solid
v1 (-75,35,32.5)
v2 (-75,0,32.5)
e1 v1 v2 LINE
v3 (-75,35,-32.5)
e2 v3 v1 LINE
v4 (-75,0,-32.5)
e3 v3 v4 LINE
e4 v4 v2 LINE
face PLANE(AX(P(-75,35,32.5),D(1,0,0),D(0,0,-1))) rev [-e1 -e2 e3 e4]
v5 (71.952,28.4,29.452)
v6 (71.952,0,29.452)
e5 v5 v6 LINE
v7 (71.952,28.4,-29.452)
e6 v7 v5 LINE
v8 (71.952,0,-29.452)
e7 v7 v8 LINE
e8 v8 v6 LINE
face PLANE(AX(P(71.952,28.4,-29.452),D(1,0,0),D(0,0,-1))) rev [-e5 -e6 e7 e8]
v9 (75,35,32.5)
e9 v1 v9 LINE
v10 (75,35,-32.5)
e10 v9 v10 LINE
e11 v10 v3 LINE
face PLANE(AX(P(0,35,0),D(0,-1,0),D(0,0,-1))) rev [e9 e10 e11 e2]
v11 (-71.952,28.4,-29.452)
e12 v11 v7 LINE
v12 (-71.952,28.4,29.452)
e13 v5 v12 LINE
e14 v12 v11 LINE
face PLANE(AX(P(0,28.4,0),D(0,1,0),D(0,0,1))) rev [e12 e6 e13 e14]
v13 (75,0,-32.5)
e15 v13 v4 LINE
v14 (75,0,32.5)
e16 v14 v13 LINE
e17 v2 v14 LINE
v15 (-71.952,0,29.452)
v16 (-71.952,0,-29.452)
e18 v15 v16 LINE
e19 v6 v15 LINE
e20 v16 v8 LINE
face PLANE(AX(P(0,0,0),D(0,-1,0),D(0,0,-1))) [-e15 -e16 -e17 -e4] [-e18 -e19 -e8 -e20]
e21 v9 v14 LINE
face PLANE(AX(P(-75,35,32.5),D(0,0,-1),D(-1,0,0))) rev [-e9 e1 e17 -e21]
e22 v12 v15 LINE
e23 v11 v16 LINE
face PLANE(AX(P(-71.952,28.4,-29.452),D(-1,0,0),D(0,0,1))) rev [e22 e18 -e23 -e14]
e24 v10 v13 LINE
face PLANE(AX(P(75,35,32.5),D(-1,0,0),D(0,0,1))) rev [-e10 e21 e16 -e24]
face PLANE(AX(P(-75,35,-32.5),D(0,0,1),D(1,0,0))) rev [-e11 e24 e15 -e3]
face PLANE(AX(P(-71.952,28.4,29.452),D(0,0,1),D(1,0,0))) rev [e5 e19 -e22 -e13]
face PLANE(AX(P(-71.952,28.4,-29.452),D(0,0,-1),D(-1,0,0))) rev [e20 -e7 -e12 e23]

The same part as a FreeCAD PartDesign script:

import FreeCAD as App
import Part
import Sketcher

V = App.Vector


def add_polygon(sketch, points):
    """Adds a closed chain of lines whose ends are joined by coincident constraints."""
    first, n = sketch.GeometryCount, len(points)
    for a, b in zip(points, points[1:] + points[:1]):
        sketch.addGeometry(Part.LineSegment(App.Vector(*a, 0), App.Vector(*b, 0)), False)
    for i in range(n):
        sketch.addConstraint(Sketcher.Constraint("Coincident", first + i, 2, first + (i + 1) % n, 1))

doc = App.newDocument("Part")
body = doc.addObject("PartDesign::Body", "Body")

# Sketch on XZ plane
sketch1 = body.newObject("Sketcher::SketchObject", "Sketch")
sketch1.AttachmentSupport = (doc.getObject("XZ_Plane"), [""])
sketch1.MapMode = "FlatFace"
add_polygon(sketch1, [(-75, -32), (-75, 32), (75, 32), (75, -32)])  # lines 0-3
sketch1.addConstraint(Sketcher.Constraint("Vertical", 0))
sketch1.addConstraint(Sketcher.Constraint("Horizontal", 1))
sketch1.addConstraint(Sketcher.Constraint("Vertical", 2))
sketch1.addConstraint(Sketcher.Constraint("Horizontal", 3))
sketch1.addConstraint(Sketcher.Constraint("Symmetric", 0, 2, 2, 2, -1, 1))
sketch1.addConstraint(Sketcher.Constraint("DistanceX", 1, 1, 1, 2, 150.0))
sketch1.addConstraint(Sketcher.Constraint("DistanceY", 0, 1, 0, 2, 65.0))
pad1 = body.newObject("PartDesign::Pad", "Pad")
pad1.Profile = sketch1
pad1.Length = 35
pad1.Reversed = True

# Sketch on XZ plane
sketch2 = body.newObject("Sketcher::SketchObject", "Sketch001")
sketch2.AttachmentSupport = (doc.getObject("XZ_Plane"), [""])
sketch2.MapMode = "FlatFace"
add_polygon(sketch2, [(-72, 29), (-72, -29), (72, -29), (72, 29)])  # lines 0-3
sketch2.addConstraint(Sketcher.Constraint("Vertical", 0))
sketch2.addConstraint(Sketcher.Constraint("Horizontal", 1))
sketch2.addConstraint(Sketcher.Constraint("Vertical", 2))
sketch2.addConstraint(Sketcher.Constraint("Horizontal", 3))
sketch2.addConstraint(Sketcher.Constraint("Symmetric", 0, 2, 2, 2, -1, 1))
sketch2.addConstraint(Sketcher.Constraint("DistanceX", 1, 1, 1, 2, 143.904))
sketch2.addConstraint(Sketcher.Constraint("DistanceY", 0, 2, 0, 1, 58.904))
pocket1 = body.newObject("PartDesign::Pocket", "Pocket")
pocket1.Profile = sketch2
pocket1.Length = 28.4

doc.recompute()
